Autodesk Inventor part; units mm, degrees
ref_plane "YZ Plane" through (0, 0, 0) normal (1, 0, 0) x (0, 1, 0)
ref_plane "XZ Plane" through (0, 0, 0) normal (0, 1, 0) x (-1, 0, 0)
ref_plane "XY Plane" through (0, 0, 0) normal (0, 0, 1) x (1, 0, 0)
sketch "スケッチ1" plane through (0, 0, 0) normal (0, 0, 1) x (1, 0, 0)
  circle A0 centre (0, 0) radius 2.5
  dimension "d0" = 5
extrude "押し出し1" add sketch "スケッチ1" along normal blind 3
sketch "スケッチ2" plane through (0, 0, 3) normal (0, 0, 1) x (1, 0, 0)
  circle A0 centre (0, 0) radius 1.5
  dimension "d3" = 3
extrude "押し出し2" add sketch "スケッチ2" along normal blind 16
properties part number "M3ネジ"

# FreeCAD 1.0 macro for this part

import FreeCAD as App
import Part
import Sketcher
from FreeCAD import Vector

doc = App.newDocument("Part")
body = doc.addObject("PartDesign::Body", "Body")

sketch1 = body.newObject("Sketcher::SketchObject", "Sketch")
sketch1.AttachmentSupport = (doc.getObject("XY_Plane"), [""])
sketch1.MapMode = "FlatFace"
sketch1.addGeometry(Part.Circle(Vector(0, 0, 0), Vector(0, 0, 1), 2.5), False)
sketch1.addConstraint(Sketcher.Constraint("Coincident", 0, 3, -1, 1))
sketch1.addConstraint(Sketcher.Constraint("Diameter", 0, 5.0))
pad1 = body.newObject("PartDesign::Pad", "Pad")
pad1.Profile = sketch1
pad1.Length = 3

sketch2 = body.newObject("Sketcher::SketchObject", "Sketch001")
sketch2.AttachmentSupport = (doc.getObject("XY_Plane"), [""])
sketch2.MapMode = "FlatFace"
sketch2.AttachmentOffset = App.Placement(Vector(0, 0, 3), App.Rotation())
sketch2.addGeometry(Part.Circle(Vector(0, 0, 0), Vector(0, 0, 1), 1.5), False)
sketch2.addConstraint(Sketcher.Constraint("Coincident", 0, 3, -1, 1))
sketch2.addConstraint(Sketcher.Constraint("Diameter", 0, 3.0))
pad2 = body.newObject("PartDesign::Pad", "Pad001")
pad2.Profile = sketch2
pad2.Length = 16

doc.recompute()
